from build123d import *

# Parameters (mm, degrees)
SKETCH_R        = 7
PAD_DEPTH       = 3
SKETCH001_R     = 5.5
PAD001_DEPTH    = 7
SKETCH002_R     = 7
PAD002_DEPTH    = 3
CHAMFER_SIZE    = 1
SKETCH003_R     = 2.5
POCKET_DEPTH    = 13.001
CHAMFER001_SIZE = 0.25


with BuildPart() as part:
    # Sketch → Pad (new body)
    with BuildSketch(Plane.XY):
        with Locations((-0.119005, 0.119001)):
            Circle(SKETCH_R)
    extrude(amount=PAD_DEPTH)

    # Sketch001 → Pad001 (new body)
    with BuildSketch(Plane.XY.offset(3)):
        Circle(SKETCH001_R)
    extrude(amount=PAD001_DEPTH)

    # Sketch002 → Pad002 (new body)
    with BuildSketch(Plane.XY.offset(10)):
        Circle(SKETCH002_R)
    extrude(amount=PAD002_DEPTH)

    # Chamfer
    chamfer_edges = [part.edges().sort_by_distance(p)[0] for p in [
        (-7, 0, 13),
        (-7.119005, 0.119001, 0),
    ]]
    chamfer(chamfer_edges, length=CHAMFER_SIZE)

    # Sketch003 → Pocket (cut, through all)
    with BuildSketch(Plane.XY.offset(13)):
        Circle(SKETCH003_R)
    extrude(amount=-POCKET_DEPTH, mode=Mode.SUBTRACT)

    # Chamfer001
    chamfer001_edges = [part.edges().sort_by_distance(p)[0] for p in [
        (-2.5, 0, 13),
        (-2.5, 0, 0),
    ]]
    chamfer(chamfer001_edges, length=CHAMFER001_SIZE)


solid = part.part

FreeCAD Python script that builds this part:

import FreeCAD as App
import Part
import Sketcher


def edges_at(feature, points):
    """Names of the edges that pass closest to the given points."""
    edges = feature.Shape.Edges
    near = lambda p: min(range(len(edges)), key=lambda i: edges[i].distToShape(Part.Vertex(*p))[0])
    return sorted({f"Edge{near(p) + 1}" for p in points})

doc = App.newDocument("Part")
params = doc.addObject("Spreadsheet::Sheet", "Params")
for row, (alias, value) in enumerate([
    ("sketch1_diameter", "14 mm"),
    ("pad1_length", "3 mm"),
    ("sketch2_diameter", "11 mm"),
    ("pad2_length", "7 mm"),
    ("sketch3_diameter", "14 mm"),
    ("pad3_length", "3 mm"),
    ("chamfer_size", "1 mm"),
    ("sketch4_diameter", "5 mm"),
    ("chamfer2_size", "0.25 mm"),
], start=1):
    params.set(f"A{row}", alias)
    params.set(f"B{row}", "=" + value)
    params.setAlias(f"B{row}", alias)

body = doc.addObject("PartDesign::Body", "Body")

sketch1 = body.newObject("Sketcher::SketchObject", "Sketch")
sketch1.AttachmentSupport = (doc.getObject("XY_Plane"), [""])
sketch1.MapMode = "FlatFace"
sketch1.addGeometry(Part.Circle(App.Vector(0, 0, 0), App.Vector(0, 0, 1), 7), False)
sketch1.addConstraint(Sketcher.Constraint("Diameter", 0, 14.0))
sketch1.addConstraint(Sketcher.Constraint("DistanceY", -1, 1, 0, 3, 0.119001))
sketch1.addConstraint(Sketcher.Constraint("DistanceX", 0, 3, -1, 1, 0.119005))
sketch1.setExpression("Constraints[0]", "Params.sketch1_diameter")
pad1 = body.newObject("PartDesign::Pad", "Pad")
pad1.Profile = sketch1
pad1.setExpression("Length", "Params.pad1_length")

sketch2 = body.newObject("Sketcher::SketchObject", "Sketch001")
sketch2.AttachmentSupport = (doc.getObject("XY_Plane"), [""])
sketch2.MapMode = "FlatFace"
sketch2.AttachmentOffset = App.Placement(App.Vector(0, 0, 3), App.Rotation())
sketch2.addGeometry(Part.Circle(App.Vector(0, 0, 0), App.Vector(0, 0, 1), 6), False)
sketch2.addConstraint(Sketcher.Constraint("Coincident", 0, 3, -1, 1))
sketch2.addConstraint(Sketcher.Constraint("Diameter", 0, 11.0))
sketch2.setExpression("Constraints[1]", "Params.sketch2_diameter")
pad2 = body.newObject("PartDesign::Pad", "Pad001")
pad2.Profile = sketch2
pad2.setExpression("Length", "Params.pad2_length")

sketch3 = body.newObject("Sketcher::SketchObject", "Sketch002")
sketch3.AttachmentSupport = (doc.getObject("XY_Plane"), [""])
sketch3.MapMode = "FlatFace"
sketch3.AttachmentOffset = App.Placement(App.Vector(0, 0, 10), App.Rotation())
sketch3.addGeometry(Part.Circle(App.Vector(0, 0, 0), App.Vector(0, 0, 1), 7), False)
sketch3.addConstraint(Sketcher.Constraint("Coincident", 0, 3, -1, 1))
sketch3.addConstraint(Sketcher.Constraint("Diameter", 0, 14.0))
sketch3.setExpression("Constraints[1]", "Params.sketch3_diameter")
pad3 = body.newObject("PartDesign::Pad", "Pad002")
pad3.Profile = sketch3
pad3.setExpression("Length", "Params.pad3_length")
doc.recompute()

chamfer = body.newObject("PartDesign::Chamfer", "Chamfer")
chamfer.Base = (pad3, edges_at(pad3, [(-7, 0, 13), (-7.119, 0.119, 0)]))
chamfer.setExpression("Size", "Params.chamfer_size")

sketch4 = body.newObject("Sketcher::SketchObject", "Sketch003")
sketch4.AttachmentSupport = (doc.getObject("XY_Plane"), [""])
sketch4.MapMode = "FlatFace"
sketch4.AttachmentOffset = App.Placement(App.Vector(0, 0, 13), App.Rotation())
sketch4.addGeometry(Part.Circle(App.Vector(0, 0, 0), App.Vector(0, 0, 1), 2.5), False)
sketch4.addConstraint(Sketcher.Constraint("Coincident", 0, 3, -1, 1))
sketch4.addConstraint(Sketcher.Constraint("Diameter", 0, 5.0))
sketch4.setExpression("Constraints[1]", "Params.sketch4_diameter")
pocket1 = body.newObject("PartDesign::Pocket", "Pocket")
pocket1.Profile = sketch4
pocket1.Type = "ThroughAll"
doc.recompute()

chamfer2 = body.newObject("PartDesign::Chamfer", "Chamfer001")
chamfer2.Base = (pocket1, edges_at(pocket1, [(-2.5, 0, 13), (-2.5, 0, 0)]))
chamfer2.setExpression("Size", "Params.chamfer2_size")

doc.recompute()
